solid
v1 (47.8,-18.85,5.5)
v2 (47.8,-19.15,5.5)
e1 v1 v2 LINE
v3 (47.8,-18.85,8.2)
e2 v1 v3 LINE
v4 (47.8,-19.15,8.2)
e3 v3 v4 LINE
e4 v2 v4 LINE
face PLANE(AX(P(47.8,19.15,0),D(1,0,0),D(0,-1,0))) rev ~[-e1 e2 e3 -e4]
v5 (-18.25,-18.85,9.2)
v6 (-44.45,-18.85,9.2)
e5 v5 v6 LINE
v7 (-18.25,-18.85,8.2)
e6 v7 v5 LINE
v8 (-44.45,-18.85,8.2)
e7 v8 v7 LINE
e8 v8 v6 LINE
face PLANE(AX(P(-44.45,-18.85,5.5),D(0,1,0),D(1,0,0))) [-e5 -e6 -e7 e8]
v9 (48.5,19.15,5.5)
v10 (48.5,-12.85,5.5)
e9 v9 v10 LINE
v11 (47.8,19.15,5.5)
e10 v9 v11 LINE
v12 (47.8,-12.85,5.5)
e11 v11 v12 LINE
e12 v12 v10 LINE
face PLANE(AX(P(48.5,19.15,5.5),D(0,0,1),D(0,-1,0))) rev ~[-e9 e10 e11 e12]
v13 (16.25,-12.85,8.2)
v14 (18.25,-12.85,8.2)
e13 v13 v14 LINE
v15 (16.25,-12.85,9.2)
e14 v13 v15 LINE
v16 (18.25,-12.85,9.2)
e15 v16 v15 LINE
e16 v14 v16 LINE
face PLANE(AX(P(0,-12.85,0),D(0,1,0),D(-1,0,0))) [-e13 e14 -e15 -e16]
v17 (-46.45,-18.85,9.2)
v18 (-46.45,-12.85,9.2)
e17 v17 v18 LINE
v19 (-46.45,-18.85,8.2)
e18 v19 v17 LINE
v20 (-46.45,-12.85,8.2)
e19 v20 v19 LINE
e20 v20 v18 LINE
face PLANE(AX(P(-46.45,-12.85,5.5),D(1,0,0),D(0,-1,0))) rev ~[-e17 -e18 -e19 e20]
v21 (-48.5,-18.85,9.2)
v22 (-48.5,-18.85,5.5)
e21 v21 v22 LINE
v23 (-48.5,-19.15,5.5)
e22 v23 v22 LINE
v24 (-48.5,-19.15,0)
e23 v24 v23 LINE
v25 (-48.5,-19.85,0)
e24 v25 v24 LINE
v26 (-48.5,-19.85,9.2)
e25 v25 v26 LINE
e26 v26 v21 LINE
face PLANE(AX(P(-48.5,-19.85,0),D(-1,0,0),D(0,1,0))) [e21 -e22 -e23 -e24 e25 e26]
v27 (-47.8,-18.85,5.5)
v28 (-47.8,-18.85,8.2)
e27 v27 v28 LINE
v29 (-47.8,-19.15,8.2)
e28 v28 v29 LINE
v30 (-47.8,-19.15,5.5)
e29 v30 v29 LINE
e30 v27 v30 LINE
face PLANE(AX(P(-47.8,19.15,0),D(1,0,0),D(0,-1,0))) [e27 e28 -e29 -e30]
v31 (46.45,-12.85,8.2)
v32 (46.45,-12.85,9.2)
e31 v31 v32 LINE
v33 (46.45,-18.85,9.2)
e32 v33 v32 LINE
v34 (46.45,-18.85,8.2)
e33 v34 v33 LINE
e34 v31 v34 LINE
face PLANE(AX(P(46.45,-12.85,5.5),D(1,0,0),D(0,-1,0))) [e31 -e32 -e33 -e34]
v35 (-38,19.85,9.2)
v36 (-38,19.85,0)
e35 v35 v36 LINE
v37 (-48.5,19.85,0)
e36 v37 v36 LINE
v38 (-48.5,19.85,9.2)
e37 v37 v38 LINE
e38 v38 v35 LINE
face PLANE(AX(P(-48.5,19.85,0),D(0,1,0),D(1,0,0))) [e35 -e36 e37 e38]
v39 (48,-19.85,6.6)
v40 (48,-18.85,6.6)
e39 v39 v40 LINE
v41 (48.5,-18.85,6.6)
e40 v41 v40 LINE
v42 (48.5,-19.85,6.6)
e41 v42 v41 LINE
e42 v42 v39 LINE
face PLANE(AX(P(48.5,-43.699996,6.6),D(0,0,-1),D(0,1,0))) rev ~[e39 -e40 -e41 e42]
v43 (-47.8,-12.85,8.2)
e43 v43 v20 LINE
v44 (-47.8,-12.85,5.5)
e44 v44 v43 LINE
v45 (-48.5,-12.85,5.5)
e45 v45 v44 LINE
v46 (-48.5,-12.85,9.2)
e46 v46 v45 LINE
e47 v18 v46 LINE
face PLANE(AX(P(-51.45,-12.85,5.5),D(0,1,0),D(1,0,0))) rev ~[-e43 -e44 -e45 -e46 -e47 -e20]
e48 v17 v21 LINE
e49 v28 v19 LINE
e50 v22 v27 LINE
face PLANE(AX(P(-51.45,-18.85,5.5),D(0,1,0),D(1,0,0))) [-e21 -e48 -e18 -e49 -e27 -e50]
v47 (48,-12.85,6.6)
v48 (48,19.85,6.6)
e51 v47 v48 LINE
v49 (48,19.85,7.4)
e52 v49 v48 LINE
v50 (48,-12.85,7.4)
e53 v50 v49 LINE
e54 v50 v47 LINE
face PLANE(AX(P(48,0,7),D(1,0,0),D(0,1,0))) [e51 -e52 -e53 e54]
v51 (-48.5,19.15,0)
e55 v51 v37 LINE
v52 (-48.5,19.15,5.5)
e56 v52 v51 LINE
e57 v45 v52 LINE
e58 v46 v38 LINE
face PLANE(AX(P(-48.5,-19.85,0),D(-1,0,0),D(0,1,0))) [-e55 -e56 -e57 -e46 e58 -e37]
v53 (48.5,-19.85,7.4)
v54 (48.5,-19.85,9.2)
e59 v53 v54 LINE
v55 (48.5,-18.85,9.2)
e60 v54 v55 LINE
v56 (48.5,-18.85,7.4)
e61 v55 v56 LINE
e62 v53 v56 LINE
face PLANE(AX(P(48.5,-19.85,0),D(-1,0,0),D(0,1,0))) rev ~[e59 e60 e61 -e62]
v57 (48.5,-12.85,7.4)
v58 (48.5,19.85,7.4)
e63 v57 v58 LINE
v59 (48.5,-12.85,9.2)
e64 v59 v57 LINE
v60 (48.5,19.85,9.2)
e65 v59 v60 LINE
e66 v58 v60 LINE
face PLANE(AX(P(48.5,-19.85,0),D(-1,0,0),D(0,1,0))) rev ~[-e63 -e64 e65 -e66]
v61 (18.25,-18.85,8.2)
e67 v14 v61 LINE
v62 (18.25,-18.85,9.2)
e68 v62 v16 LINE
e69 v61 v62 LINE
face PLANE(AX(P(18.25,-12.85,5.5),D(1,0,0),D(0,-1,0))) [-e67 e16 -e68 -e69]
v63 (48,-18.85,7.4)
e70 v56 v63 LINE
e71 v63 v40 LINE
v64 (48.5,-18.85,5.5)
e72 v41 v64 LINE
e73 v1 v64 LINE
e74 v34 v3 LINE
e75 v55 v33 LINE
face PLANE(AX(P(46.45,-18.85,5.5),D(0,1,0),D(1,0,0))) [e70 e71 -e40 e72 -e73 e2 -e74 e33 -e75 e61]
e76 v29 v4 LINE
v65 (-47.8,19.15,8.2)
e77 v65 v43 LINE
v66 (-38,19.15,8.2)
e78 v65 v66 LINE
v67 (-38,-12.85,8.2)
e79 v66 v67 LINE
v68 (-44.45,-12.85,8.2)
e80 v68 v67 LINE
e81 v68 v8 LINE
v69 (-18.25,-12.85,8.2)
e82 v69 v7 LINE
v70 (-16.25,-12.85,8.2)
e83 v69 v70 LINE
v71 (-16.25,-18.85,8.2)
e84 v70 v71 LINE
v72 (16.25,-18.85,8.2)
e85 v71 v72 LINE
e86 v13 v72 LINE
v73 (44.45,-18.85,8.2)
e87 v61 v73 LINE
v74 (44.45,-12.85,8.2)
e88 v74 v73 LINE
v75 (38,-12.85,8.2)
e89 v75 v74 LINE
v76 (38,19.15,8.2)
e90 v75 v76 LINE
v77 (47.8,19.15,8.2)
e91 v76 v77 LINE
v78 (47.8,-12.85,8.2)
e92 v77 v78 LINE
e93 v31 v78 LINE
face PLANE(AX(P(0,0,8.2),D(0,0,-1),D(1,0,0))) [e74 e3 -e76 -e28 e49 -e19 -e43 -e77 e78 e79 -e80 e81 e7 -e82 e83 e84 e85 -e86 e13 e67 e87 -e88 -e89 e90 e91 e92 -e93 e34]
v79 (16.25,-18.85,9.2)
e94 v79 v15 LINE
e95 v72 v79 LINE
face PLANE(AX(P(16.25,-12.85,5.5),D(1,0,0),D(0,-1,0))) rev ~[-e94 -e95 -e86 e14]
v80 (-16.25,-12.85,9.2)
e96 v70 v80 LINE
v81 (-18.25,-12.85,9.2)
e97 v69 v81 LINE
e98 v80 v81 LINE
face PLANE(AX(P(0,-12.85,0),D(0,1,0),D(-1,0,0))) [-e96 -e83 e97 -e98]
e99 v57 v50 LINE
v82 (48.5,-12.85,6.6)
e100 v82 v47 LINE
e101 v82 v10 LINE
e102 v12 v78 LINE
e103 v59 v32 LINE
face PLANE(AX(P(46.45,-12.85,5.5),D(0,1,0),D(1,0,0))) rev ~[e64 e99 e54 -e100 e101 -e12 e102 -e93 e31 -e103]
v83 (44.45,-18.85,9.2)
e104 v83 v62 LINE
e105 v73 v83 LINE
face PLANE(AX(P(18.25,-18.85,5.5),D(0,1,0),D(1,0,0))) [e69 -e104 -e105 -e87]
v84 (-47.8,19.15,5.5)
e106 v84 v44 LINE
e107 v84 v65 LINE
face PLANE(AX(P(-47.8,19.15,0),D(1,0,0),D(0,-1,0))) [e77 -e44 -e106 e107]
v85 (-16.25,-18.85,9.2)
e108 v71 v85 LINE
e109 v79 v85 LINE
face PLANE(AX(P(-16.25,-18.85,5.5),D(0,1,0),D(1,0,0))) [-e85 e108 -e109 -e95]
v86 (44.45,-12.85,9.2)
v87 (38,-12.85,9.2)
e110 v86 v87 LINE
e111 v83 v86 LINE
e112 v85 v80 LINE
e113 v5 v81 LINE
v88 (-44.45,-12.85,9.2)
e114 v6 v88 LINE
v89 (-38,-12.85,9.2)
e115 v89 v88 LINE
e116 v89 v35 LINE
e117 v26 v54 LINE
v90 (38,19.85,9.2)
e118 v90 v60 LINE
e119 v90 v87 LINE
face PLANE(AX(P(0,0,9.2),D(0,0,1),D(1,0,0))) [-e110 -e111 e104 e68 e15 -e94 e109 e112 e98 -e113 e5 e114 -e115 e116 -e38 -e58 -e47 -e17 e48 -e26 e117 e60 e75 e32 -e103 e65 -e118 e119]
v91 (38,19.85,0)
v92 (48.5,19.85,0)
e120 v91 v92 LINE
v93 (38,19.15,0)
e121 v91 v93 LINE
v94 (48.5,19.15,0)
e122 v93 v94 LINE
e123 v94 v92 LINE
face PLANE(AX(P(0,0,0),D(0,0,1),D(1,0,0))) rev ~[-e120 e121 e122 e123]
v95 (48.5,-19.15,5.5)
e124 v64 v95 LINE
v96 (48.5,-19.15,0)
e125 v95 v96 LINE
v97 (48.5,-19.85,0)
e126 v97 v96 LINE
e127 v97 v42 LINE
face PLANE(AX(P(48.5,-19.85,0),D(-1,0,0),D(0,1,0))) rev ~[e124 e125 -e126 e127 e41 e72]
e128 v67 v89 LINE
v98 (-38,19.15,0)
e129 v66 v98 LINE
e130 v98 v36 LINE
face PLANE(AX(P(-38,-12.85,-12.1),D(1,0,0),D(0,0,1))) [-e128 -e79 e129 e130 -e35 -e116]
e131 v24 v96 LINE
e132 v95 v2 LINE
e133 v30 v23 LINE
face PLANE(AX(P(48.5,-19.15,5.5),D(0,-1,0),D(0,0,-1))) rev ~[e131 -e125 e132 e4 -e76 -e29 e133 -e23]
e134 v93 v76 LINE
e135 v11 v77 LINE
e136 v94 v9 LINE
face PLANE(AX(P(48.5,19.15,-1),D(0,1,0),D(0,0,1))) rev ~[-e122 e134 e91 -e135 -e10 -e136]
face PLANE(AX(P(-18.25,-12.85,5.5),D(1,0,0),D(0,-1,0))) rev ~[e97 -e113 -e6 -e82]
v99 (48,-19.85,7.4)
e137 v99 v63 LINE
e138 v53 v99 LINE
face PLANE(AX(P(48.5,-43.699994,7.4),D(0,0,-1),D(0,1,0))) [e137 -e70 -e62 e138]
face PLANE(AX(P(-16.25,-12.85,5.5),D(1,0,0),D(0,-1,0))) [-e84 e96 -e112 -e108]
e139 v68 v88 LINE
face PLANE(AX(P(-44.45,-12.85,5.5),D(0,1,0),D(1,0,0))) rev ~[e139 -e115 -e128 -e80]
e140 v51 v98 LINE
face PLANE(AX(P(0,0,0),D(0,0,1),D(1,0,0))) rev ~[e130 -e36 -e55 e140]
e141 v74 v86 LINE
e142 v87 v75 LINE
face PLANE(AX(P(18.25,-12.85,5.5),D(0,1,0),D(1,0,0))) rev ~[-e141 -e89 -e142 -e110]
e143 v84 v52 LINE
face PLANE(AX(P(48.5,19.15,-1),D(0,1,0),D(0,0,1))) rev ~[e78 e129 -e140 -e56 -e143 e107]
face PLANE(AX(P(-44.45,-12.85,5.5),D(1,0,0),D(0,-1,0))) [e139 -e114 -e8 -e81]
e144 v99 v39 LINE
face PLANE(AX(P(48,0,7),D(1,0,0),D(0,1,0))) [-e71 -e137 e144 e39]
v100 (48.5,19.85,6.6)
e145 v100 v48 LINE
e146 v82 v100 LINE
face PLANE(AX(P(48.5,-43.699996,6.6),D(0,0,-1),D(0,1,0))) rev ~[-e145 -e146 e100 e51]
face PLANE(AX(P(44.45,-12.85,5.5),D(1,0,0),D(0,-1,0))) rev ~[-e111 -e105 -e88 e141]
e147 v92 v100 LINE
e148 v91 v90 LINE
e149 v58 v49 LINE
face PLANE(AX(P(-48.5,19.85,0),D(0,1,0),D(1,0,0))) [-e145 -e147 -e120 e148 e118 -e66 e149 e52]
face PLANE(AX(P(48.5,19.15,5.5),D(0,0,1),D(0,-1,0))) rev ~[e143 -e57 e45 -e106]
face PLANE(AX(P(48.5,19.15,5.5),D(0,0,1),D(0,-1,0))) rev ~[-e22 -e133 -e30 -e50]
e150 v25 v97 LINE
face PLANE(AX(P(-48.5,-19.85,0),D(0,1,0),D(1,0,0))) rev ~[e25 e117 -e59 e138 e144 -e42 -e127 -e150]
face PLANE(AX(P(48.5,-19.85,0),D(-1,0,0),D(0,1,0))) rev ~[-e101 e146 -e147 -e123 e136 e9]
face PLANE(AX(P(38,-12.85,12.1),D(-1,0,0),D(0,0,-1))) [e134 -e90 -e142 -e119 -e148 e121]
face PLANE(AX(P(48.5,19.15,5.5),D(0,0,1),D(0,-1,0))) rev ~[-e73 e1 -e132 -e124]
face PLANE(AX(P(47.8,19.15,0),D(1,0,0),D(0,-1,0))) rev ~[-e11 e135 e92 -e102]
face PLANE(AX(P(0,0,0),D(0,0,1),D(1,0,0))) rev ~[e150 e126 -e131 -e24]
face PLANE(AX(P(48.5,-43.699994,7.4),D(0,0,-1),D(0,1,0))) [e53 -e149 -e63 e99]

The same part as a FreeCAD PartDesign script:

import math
import FreeCAD as App
import Part
import Sketcher
Q = App.Units.Quantity


def add_polygon(sketch, points):
    """Adds a closed chain of lines whose ends are joined by coincident constraints."""
    first, n = sketch.GeometryCount, len(points)
    for a, b in zip(points, points[1:] + points[:1]):
        sketch.addGeometry(Part.LineSegment(App.Vector(*a, 0), App.Vector(*b, 0)), False)
    for i in range(n):
        sketch.addConstraint(Sketcher.Constraint("Coincident", first + i, 2, first + (i + 1) % n, 1))

doc = App.newDocument("Part")
params = doc.addObject("Spreadsheet::Sheet", "Params")
for row, (alias, value) in enumerate([
    ("sketch1_width", "97 mm"),
    ("sketch1_height", "39.7 mm"),
    ("pad1_length", "9.2 mm"),
    ("sketch2_width", "95.6 mm"),
    ("sketch2_height", "38.3 mm"),
    ("pocket1_length", "8.2 mm"),
    ("sketch3_width", "38.3 mm"),
    ("sketch3_height", "6.5 mm"),
    ("sketch4_width", "5 mm"),
    ("sketch4_height", "6 mm"),
    ("sketch4_width2", "32.5 mm"),
    ("sketch4_width3", "26.2 mm"),
    ("sketch5_radius", "0.999999 mm"),
    ("sketch5_width", "74 mm"),
    ("sketch5_height", "24.2 mm"),
    ("sketch6_radius", "0.4 mm"),
    ("sketch6_width", "87.4 mm"),
    ("pocket5_length", "0.5 mm"),
    ("sketch7_height", "5 mm"),
    ("sketch7_width", "9.8 mm"),
    ("pocket6_length", "2 mm"),
], start=1):
    params.set(f"A{row}", alias)
    params.set(f"B{row}", "=" + value)
    params.setAlias(f"B{row}", alias)

body = doc.addObject("PartDesign::Body", "Body")

# Sketch on XY plane
sketch1 = body.newObject("Sketcher::SketchObject", "Sketch")
sketch1.AttachmentSupport = (doc.getObject("XY_Plane"), [""])
sketch1.MapMode = "FlatFace"
add_polygon(sketch1, [(-48, 20), (-48, -20), (48, -20), (48, 20)])  # lines 0-3
sketch1.addConstraint([
    Sketcher.Constraint("Vertical", 0),
    Sketcher.Constraint("Horizontal", 1),
    Sketcher.Constraint("Vertical", 2),
    Sketcher.Constraint("Horizontal", 3),
    Sketcher.Constraint("Symmetric", 0, 2, 2, 2, -1, 1),
    Sketcher.Constraint("DistanceX", 1, 1, 1, 2, Q("97 mm")),
    Sketcher.Constraint("DistanceY", 0, 2, 0, 1, Q("39.7 mm")),
])
sketch1.setExpression("Constraints[9]", "Params.sketch1_width")
sketch1.setExpression("Constraints[10]", "Params.sketch1_height")
pad1 = body.newObject("PartDesign::Pad", "Pad")
pad1.Profile = sketch1
pad1.setExpression("Length", "Params.pad1_length")

# Sketch on XY plane
sketch2 = body.newObject("Sketcher::SketchObject", "Sketch001")
sketch2.AttachmentSupport = (doc.getObject("XY_Plane"), [""])
sketch2.MapMode = "FlatFace"
add_polygon(sketch2, [(-48, -19), (-48, 19), (48, 19), (48, -19)])  # lines 0-3
sketch2.addConstraint([
    Sketcher.Constraint("Vertical", 0),
    Sketcher.Constraint("Horizontal", 1),
    Sketcher.Constraint("Vertical", 2),
    Sketcher.Constraint("Horizontal", 3),
    Sketcher.Constraint("Symmetric", 0, 2, 2, 2, -1, 1),
    Sketcher.Constraint("DistanceX", 1, 1, 1, 2, Q("95.6 mm")),
    Sketcher.Constraint("DistanceY", 0, 1, 0, 2, Q("38.3 mm")),
])
sketch2.setExpression("Constraints[9]", "Params.sketch2_width")
sketch2.setExpression("Constraints[10]", "Params.sketch2_height")
pocket1 = body.newObject("PartDesign::Pocket", "Pocket")
pocket1.Profile = sketch2
pocket1.setExpression("Length", "Params.pocket1_length")
pocket1.Reversed = True

# Sketch on YZ plane
sketch3 = body.newObject("Sketcher::SketchObject", "Sketch002")
sketch3.AttachmentSupport = (doc.getObject("YZ_Plane"), [""])
sketch3.MapMode = "FlatFace"
sketch3.AttachmentOffset = App.Placement(App.Vector(0, 0, 48.5), App.Rotation())
add_polygon(sketch3, [(19, 6), (-19, 6), (-19, -1), (19, -1)])  # lines 0-3
sketch3.addConstraint([
    Sketcher.Constraint("Horizontal", 0),
    Sketcher.Constraint("Vertical", 1),
    Sketcher.Constraint("Horizontal", 2),
    Sketcher.Constraint("Vertical", 3),
    Sketcher.Constraint("DistanceX", 0, 2, 0, 1, Q("38.3 mm")),
    Sketcher.Constraint("DistanceY", 1, 2, 1, 1, Q("6.5 mm")),
    Sketcher.Constraint("DistanceY", 1, 2, -1, 1, Q("1 mm")),
    Sketcher.Constraint("DistanceX", 0, 2, -1, 1, Q("19.15 mm")),
])
sketch3.setExpression("Constraints[8]", "Params.sketch3_width")
sketch3.setExpression("Constraints[9]", "Params.sketch3_height")
pocket2 = body.newObject("PartDesign::Pocket", "Pocket001")
pocket2.Profile = sketch3
pocket2.Type = "ThroughAll"

# Sketch on XY plane
sketch4 = body.newObject("Sketcher::SketchObject", "Sketch003")
sketch4.AttachmentSupport = (doc.getObject("XY_Plane"), [""])
sketch4.MapMode = "FlatFace"
sketch4.AttachmentOffset = App.Placement(App.Vector(0, 0, 5.5), App.Rotation())
add_polygon(sketch4, [(-16, -19), (-16, -13), (16, -13), (16, -19)])  # lines 0-3
add_polygon(sketch4, [(-44, -19), (-44, -13), (-18, -13), (-18, -19)])  # lines 4-7
add_polygon(sketch4, [(-51, -19), (-51, -13), (-46, -13), (-46, -19)])  # lines 8-11
add_polygon(sketch4, [(18, -19), (18, -13), (44, -13), (44, -19)])  # lines 12-15
add_polygon(sketch4, [(46, -19), (46, -13), (51, -13), (51, -19)])  # lines 16-19
sketch4.addConstraint([
    Sketcher.Constraint("Vertical", 0),
    Sketcher.Constraint("Horizontal", 1),
    Sketcher.Constraint("Vertical", 2),
    Sketcher.Constraint("Horizontal", 3),
    Sketcher.Constraint("Vertical", 4),
    Sketcher.Constraint("Horizontal", 5),
    Sketcher.Constraint("Vertical", 6),
    Sketcher.Constraint("Horizontal", 7),
    Sketcher.Constraint("Vertical", 8),
    Sketcher.Constraint("Horizontal", 9),
    Sketcher.Constraint("Vertical", 10),
    Sketcher.Constraint("Horizontal", 11),
    Sketcher.Constraint("Vertical", 12),
    Sketcher.Constraint("Horizontal", 13),
    Sketcher.Constraint("Vertical", 14),
    Sketcher.Constraint("Horizontal", 15),
    Sketcher.Constraint("Vertical", 16),
    Sketcher.Constraint("Horizontal", 17),
    Sketcher.Constraint("Vertical", 18),
    Sketcher.Constraint("Horizontal", 19),
    Sketcher.Constraint("Symmetric", 5, 2, 12, 2, -2),
    Sketcher.Constraint("Symmetric", 7, 2, 14, 2, -2),
    Sketcher.Constraint("Symmetric", 9, 2, 16, 2, -2),
    Sketcher.Constraint("Symmetric", 11, 2, 18, 2, -2),
    Sketcher.Constraint("Horizontal", 1, 2, 4, 2),
    Sketcher.Constraint("Horizontal", 3, 2, 6, 2),
    Sketcher.Constraint("Horizontal", 5, 2, 8, 2),
    Sketcher.Constraint("Horizontal", 7, 2, 10, 2),
    Sketcher.Constraint("DistanceX", 9, 1, 9, 2, Q("5 mm")),
    Sketcher.Constraint("DistanceY", 0, 1, 0, 2, Q("6 mm")),
    Sketcher.Constraint("DistanceX", 1, 1, 1, 2, Q("32.5 mm")),
    Sketcher.Constraint("DistanceX", 5, 1, 5, 2, Q("26.2 mm")),
    Sketcher.Constraint("DistanceX", 5, 2, 0, 2, Q("2 mm")),
    Sketcher.Constraint("DistanceX", 8, 2, 4, 2, Q("7 mm")),
    Sketcher.Constraint("DistanceX", 1, 2, 12, 2, Q("2 mm")),
    Sketcher.Constraint("DistanceY", 0, 2, -1, 1, Q("12.85 mm")),
])
sketch4.setExpression("Constraints[48]", "Params.sketch4_width")
sketch4.setExpression("Constraints[49]", "Params.sketch4_height")
sketch4.setExpression("Constraints[50]", "Params.sketch4_width2")
sketch4.setExpression("Constraints[51]", "Params.sketch4_width3")
pocket3 = body.newObject("PartDesign::Pocket", "Pocket002")
pocket3.Profile = sketch4
pocket3.Type = "ThroughAll"
pocket3.Reversed = True

# Sketch on XZ plane
sketch5 = body.newObject("Sketcher::SketchObject", "Sketch004")
sketch5.AttachmentSupport = (doc.getObject("XZ_Plane"), [""])
sketch5.MapMode = "FlatFace"
sketch5.AttachmentOffset = App.Placement(App.Vector(0, 0, 12.85), App.Rotation())
sketch5.addGeometry([
    Part.LineSegment(App.Vector(37, 13.1, 0), App.Vector(-37, 13.1, 0)),  # 0
    Part.ArcOfCircle(Part.Circle(App.Vector(-37, 12.1, 0), App.Vector(0, 0, 1), 1), math.radians(90), math.radians(180)),  # 1
    Part.LineSegment(App.Vector(-38, 12.1, 0), App.Vector(-38, -12.1, 0)),  # 2
    Part.ArcOfCircle(Part.Circle(App.Vector(-37, -12.1, 0), App.Vector(0, 0, 1), 1), math.radians(180), math.radians(270)),  # 3
    Part.LineSegment(App.Vector(-37, -13.1, 0), App.Vector(37, -13.1, 0)),  # 4
    Part.ArcOfCircle(Part.Circle(App.Vector(37, -12.1, 0), App.Vector(0, 0, 1), 1), math.radians(-90), math.radians(0)),  # 5
    Part.LineSegment(App.Vector(38, -12.1, 0), App.Vector(38, 12.1, 0)),  # 6
    Part.ArcOfCircle(Part.Circle(App.Vector(37, 12.1, 0), App.Vector(0, 0, 1), 1), math.radians(0), math.radians(90)),  # 7
], False)
sketch5.addConstraint([
    Sketcher.Constraint("Tangent", 0, 2, 1, 1),
    Sketcher.Constraint("Tangent", 1, 2, 2, 1),
    Sketcher.Constraint("Tangent", 2, 2, 3, 1),
    Sketcher.Constraint("Tangent", 3, 2, 4, 1),
    Sketcher.Constraint("Tangent", 4, 2, 5, 1),
    Sketcher.Constraint("Tangent", 5, 2, 6, 1),
    Sketcher.Constraint("Tangent", 6, 2, 7, 1),
    Sketcher.Constraint("Tangent", 7, 2, 0, 1),
    Sketcher.Constraint("Horizontal", 0),
    Sketcher.Constraint("Vertical", 2),
    Sketcher.Constraint("Horizontal", 4),
    Sketcher.Constraint("Vertical", 6),
    Sketcher.Constraint("Equal", 1, 3),
    Sketcher.Constraint("Equal", 3, 5),
    Sketcher.Constraint("Equal", 5, 7),
    Sketcher.Constraint("Symmetric", 1, 3, 5, 3, -1, 1),
    Sketcher.Constraint("Radius", 1, Q("0.999999 mm")),
    Sketcher.Constraint("DistanceX", 0, 2, 0, 1, Q("74 mm")),
    Sketcher.Constraint("DistanceY", 2, 2, 2, 1, Q("24.2 mm")),
])
sketch5.setExpression("Constraints[16]", "Params.sketch5_radius")
sketch5.setExpression("Constraints[17]", "Params.sketch5_width")
sketch5.setExpression("Constraints[18]", "Params.sketch5_height")
pocket4 = body.newObject("PartDesign::Pocket", "Pocket003")
pocket4.Profile = sketch5
pocket4.Type = "ThroughAll"

# Sketch on YZ plane
sketch6 = body.newObject("Sketcher::SketchObject", "Sketch005")
sketch6.AttachmentSupport = (doc.getObject("YZ_Plane"), [""])
sketch6.MapMode = "FlatFace"
sketch6.AttachmentOffset = App.Placement(App.Vector(0, 0, 48.5), App.Rotation())
sketch6.addGeometry([
    Part.ArcOfCircle(Part.Circle(App.Vector(-43.7, 7, 0), App.Vector(0, 0, 1), 0.4), math.radians(90), math.radians(270)),  # 0
    Part.LineSegment(App.Vector(-43.7, 6.6, 0), App.Vector(43.7, 6.6, 0)),  # 1
    Part.ArcOfCircle(Part.Circle(App.Vector(43.7, 7, 0), App.Vector(0, 0, 1), 0.4), math.radians(-90), math.radians(90)),  # 2
    Part.LineSegment(App.Vector(43.7, 7.4, 0), App.Vector(-43.7, 7.4, 0)),  # 3
    Part.ArcOfCircle(Part.Circle(App.Vector(-43.7, -7, 0), App.Vector(0, 0, 1), 0.4), math.radians(90), math.radians(270)),  # 4
    Part.LineSegment(App.Vector(-43.7, -7.4, 0), App.Vector(43.7, -7.4, 0)),  # 5
    Part.ArcOfCircle(Part.Circle(App.Vector(43.7, -7, 0), App.Vector(0, 0, 1), 0.4), math.radians(-90), math.radians(90)),  # 6
    Part.LineSegment(App.Vector(43.7, -6.6, 0), App.Vector(-43.7, -6.6, 0)),  # 7
], False)
sketch6.addConstraint([
    Sketcher.Constraint("Coincident", 0, 2, 1, 1),
    Sketcher.Constraint("Tangent", 1, 2, 2, 1),
    Sketcher.Constraint("Coincident", 2, 2, 3, 1),
    Sketcher.Constraint("Coincident", 3, 2, 0, 1),
    Sketcher.Constraint("Tangent", 4, 2, 5, 1),
    Sketcher.Constraint("Tangent", 5, 2, 6, 1),
    Sketcher.Constraint("Tangent", 6, 2, 7, 1),
    Sketcher.Constraint("Tangent", 7, 2, 4, 1),
    Sketcher.Constraint("Horizontal", 1),
    Sketcher.Constraint("Horizontal", 3),
    Sketcher.Constraint("Horizontal", 5),
    Sketcher.Constraint("Horizontal", 7),
    Sketcher.Constraint("Equal", 2, 4),
    Sketcher.Constraint("Symmetric", 2, 3, 4, 3, -1, 1),
    Sketcher.Constraint("Vertical", 0, 3, 4, 3),
    Sketcher.Constraint("Vertical", 2, 3, 6, 3),
    Sketcher.Constraint("Vertical", 1, 2, 2, 2),
    Sketcher.Constraint("Radius", 0, Q("0.4 mm")),
    Sketcher.Constraint("DistanceX", 5, 1, 5, 2, Q("87.4 mm")),
    Sketcher.Constraint("DistanceY", -1, 1, 0, 3, Q("7 mm")),
    Sketcher.Constraint("DistanceX", 1, 1, 1, 2, Q("87.399996 mm")),
    Sketcher.Constraint("DistanceX", 3, 2, 3, 1, Q("87.399993 mm")),
])
sketch6.setExpression("Constraints[17]", "Params.sketch6_radius")
sketch6.setExpression("Constraints[18]", "Params.sketch6_width")
pocket5 = body.newObject("PartDesign::Pocket", "Pocket004")
pocket5.Profile = sketch6
pocket5.setExpression("Length", "Params.pocket5_length")

# Sketch on XZ plane
sketch7 = body.newObject("Sketcher::SketchObject", "Sketch006")
sketch7.AttachmentSupport = (doc.getObject("XZ_Plane"), [""])
sketch7.MapMode = "FlatFace"
sketch7.AttachmentOffset = App.Placement(App.Vector(0, 0, -19.85), App.Rotation())
add_polygon(sketch7, [(5, 8), (5, 2), (-5, 2), (-5, 8)])  # lines 0-3
sketch7.addConstraint([
    Sketcher.Constraint("Vertical", 0),
    Sketcher.Constraint("Horizontal", 1),
    Sketcher.Constraint("Vertical", 2),
    Sketcher.Constraint("Horizontal", 3),
    Sketcher.Constraint("DistanceY", 0, 2, 0, 1, Q("5 mm")),
    Sketcher.Constraint("DistanceX", 1, 2, 1, 1, Q("9.8 mm")),
    Sketcher.Constraint("DistanceX", -1, 1, 0, 2, Q("4.9 mm")),
    Sketcher.Constraint("DistanceY", -1, 1, 0, 2, Q("2.5 mm")),
])
sketch7.setExpression("Constraints[8]", "Params.sketch7_height")
sketch7.setExpression("Constraints[9]", "Params.sketch7_width")
pocket6 = body.newObject("PartDesign::Pocket", "Pocket005")
pocket6.Profile = sketch7
pocket6.setExpression("Length", "Params.pocket6_length")
pocket6.Reversed = True

doc.recompute()
